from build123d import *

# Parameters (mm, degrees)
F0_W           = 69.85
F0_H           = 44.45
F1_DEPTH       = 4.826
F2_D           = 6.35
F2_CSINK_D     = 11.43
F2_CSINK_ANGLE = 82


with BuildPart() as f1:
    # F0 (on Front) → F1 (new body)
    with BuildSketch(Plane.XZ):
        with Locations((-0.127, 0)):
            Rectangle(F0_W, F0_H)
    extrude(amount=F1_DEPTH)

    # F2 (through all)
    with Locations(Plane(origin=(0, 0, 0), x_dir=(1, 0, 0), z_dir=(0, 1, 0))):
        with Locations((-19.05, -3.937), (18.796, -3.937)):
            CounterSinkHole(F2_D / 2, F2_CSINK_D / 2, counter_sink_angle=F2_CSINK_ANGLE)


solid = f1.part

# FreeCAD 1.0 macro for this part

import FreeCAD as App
import Part
import Sketcher
from FreeCAD import Vector
Q = App.Units.Quantity

doc = App.newDocument("Part")
body = doc.addObject("PartDesign::Body", "Body")

# Sketch on XZ plane
sketch1 = body.newObject("Sketcher::SketchObject", "Sketch")
sketch1.AttachmentSupport = (doc.getObject("XZ_Plane"), [""])
sketch1.MapMode = "FlatFace"
sketch1.addGeometry([
    Part.LineSegment(Vector(-35, 22, 0), Vector(-35, -22, 0)),
    Part.LineSegment(Vector(-35, -22, 0), Vector(35, -22, 0)),
    Part.LineSegment(Vector(35, -22, 0), Vector(35, 22, 0)),
    Part.LineSegment(Vector(35, 22, 0), Vector(-35, 22, 0)),
], False)
sketch1.addConstraint([
    Sketcher.Constraint("Coincident", 0, 2, 1, 1),
    Sketcher.Constraint("Coincident", 1, 2, 2, 1),
    Sketcher.Constraint("Coincident", 2, 2, 3, 1),
    Sketcher.Constraint("Coincident", 3, 2, 0, 1),
    Sketcher.Constraint("Vertical", 0),
    Sketcher.Constraint("Horizontal", 1),
    Sketcher.Constraint("Vertical", 2),
    Sketcher.Constraint("Horizontal", 3),
    Sketcher.Constraint("DistanceX", 1, 1, 1, 2, Q("2.75 in")),
    Sketcher.Constraint("DistanceY", 0, 2, 0, 1, Q("1.75 in")),
    Sketcher.Constraint("DistanceX", 0, 2, -1, 1, Q("1.38 in")),
    Sketcher.Constraint("DistanceY", 0, 2, -1, 1, Q("0.875 in")),
])
pad1 = body.newObject("PartDesign::Pad", "Pad")
pad1.Profile = sketch1
pad1.Length = Q("0.19 in")

# Sketch on XZ plane
sketch2 = body.newObject("Sketcher::SketchObject", "Sketch001")
sketch2.AttachmentSupport = (doc.getObject("XZ_Plane"), [""])
sketch2.MapMode = "FlatFace"
sketch2.addGeometry([
    Part.Circle(Vector(-19.1, 3.9, 0), Vector(0, 0, 1), 3.2),
    Part.Circle(Vector(18.8, 3.9, 0), Vector(0, 0, 1), 3.2),
], False)
sketch2.addConstraint([
    Sketcher.Constraint("Equal", 0, 1),
    Sketcher.Constraint("Horizontal", 0, 3, 1, 3),
    Sketcher.Constraint("Diameter", 0, Q("0.25 in")),
    Sketcher.Constraint("DistanceX", 0, 3, -1, 1, Q("0.75 in")),
    Sketcher.Constraint("DistanceX", -1, 1, 1, 3, Q("0.74 in")),
    Sketcher.Constraint("DistanceY", -1, 1, 0, 3, Q("0.155 in")),
])
doc.recompute()
hole = body.newObject("PartDesign::Hole", "Hole")
hole.Profile = sketch2
hole.ThreadType = "None"
hole.Diameter = Q("0.25 in")
hole.DepthType = "ThroughAll"
hole.HoleCutType = "Countersink"
hole.HoleCutDiameter = Q("0.45 in")
hole.HoleCutCountersinkAngle = 82
hole.Reversed = True

doc.recompute()
